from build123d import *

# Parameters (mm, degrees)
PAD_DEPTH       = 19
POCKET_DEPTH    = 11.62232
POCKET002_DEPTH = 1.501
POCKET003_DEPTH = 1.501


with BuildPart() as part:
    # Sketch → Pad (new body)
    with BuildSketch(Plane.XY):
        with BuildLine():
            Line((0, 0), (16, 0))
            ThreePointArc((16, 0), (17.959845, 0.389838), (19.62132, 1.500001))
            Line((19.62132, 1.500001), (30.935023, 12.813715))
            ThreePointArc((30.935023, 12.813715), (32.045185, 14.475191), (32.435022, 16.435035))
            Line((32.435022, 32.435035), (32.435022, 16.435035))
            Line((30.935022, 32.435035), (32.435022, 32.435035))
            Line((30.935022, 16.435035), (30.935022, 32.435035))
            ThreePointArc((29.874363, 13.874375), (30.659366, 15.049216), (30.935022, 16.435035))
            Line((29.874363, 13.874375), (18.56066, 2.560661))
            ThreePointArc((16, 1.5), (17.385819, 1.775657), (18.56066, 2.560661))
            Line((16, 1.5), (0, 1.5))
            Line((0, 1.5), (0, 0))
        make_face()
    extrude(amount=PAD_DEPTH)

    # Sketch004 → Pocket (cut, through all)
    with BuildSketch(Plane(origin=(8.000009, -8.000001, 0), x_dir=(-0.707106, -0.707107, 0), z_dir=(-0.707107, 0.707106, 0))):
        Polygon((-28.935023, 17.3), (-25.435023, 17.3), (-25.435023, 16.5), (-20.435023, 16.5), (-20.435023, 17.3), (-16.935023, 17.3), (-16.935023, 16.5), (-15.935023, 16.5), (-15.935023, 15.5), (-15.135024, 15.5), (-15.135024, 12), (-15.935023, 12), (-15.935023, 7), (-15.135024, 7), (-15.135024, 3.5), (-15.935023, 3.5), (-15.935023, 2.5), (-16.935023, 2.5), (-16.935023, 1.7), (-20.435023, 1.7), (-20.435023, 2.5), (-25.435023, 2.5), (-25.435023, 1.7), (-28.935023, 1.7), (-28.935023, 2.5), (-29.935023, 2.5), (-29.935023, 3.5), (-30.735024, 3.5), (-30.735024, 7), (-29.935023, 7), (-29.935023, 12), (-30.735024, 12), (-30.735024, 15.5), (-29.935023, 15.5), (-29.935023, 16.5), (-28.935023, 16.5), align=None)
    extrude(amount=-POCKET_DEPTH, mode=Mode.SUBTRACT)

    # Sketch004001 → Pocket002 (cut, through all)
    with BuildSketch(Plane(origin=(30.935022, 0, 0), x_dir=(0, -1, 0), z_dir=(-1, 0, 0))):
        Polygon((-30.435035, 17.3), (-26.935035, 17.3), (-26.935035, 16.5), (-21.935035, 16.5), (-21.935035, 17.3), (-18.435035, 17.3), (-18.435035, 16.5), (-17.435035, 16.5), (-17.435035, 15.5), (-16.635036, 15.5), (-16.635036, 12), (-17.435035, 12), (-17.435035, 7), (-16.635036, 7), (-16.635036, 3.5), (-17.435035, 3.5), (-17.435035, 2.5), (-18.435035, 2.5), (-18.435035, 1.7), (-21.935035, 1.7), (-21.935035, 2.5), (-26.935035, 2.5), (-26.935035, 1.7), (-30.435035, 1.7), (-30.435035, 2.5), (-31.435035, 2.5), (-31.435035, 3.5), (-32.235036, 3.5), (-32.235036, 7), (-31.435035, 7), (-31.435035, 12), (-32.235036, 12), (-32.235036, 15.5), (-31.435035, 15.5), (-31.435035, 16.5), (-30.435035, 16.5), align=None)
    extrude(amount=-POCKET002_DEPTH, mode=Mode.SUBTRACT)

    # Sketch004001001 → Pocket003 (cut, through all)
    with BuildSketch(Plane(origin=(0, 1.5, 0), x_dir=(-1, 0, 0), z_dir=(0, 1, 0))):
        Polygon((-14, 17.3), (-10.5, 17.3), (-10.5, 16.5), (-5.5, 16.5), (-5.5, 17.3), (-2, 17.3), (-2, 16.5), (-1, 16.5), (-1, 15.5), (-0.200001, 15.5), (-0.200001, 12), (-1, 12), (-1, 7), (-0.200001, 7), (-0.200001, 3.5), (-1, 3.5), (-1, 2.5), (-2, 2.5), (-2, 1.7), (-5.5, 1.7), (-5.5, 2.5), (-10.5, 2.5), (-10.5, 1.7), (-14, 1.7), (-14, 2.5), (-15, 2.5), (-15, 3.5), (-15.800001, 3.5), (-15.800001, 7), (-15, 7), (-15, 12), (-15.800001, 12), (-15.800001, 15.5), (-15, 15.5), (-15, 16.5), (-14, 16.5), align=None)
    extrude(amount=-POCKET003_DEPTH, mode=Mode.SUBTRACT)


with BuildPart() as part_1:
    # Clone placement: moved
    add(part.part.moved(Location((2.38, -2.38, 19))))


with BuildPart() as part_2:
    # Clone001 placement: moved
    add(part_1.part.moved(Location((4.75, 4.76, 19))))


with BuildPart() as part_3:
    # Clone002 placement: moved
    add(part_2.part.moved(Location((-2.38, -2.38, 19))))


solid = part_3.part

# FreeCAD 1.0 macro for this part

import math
import FreeCAD as App
import Part
import Sketcher

V = App.Vector

doc = App.newDocument("Part")
body = doc.addObject("PartDesign::Body", "Body")

sketch1 = doc.addObject("Sketcher::SketchObject", "Sketch")
body.addObject(sketch1)
sketch1.AttachmentSupport = (doc.XY_Plane, [""])
sketch1.MapMode = "FlatFace"
sketch1.addGeometry([
    Part.LineSegment(V(0, 0, 0), V(16, 0, 0)),
    Part.ArcOfCircle(Part.Circle(V(16, 5.1, 0), V(0, 0, 1), 5.1), math.radians(-90), math.radians(-45)),
    Part.LineSegment(V(19.6, 1.5, 0), V(30.9, 12.8, 0)),
    Part.ArcOfCircle(Part.Circle(V(27.3, 16.4, 0), V(0, 0, 1), 5.1), math.radians(-45), math.radians(0)),
    Part.LineSegment(V(32.4, 16.4, 0), V(32.4, 32.4, 0)),
    Part.LineSegment(V(32.4, 32.4, 0), V(30.9, 32.4, 0)),
    Part.LineSegment(V(30.9, 32.4, 0), V(30.9, 16.4, 0)),
    Part.ArcOfCircle(Part.Circle(V(27.3, 16.4, 0), V(0, 0, 1), 3.6), math.radians(-45), math.radians(0)),
    Part.LineSegment(V(29.9, 13.9, 0), V(18.6, 2.6, 0)),
    Part.ArcOfCircle(Part.Circle(V(16, 5.1, 0), V(0, 0, 1), 3.6), math.radians(-90), math.radians(-45)),
    Part.LineSegment(V(16, 1.5, 0), V(0, 1.5, 0)),
    Part.LineSegment(V(0, 1.5, 0), V(0, 0, 0)),
], False)
sketch1.addConstraint([
    Sketcher.Constraint("Tangent", 0, 2, 1, 1),
    Sketcher.Constraint("Tangent", 1, 2, 2, 1),
    Sketcher.Constraint("Tangent", 2, 2, 3, 1),
    Sketcher.Constraint("Tangent", 3, 2, 4, 1),
    Sketcher.Constraint("Coincident", 4, 2, 5, 1),
    Sketcher.Constraint("Coincident", 5, 2, 6, 1),
    Sketcher.Constraint("Tangent", 6, 2, 7, 2),
    Sketcher.Constraint("Tangent", 7, 1, 8, 1),
    Sketcher.Constraint("Tangent", 8, 2, 9, 2),
    Sketcher.Constraint("Tangent", 9, 1, 10, 1),
    Sketcher.Constraint("Coincident", 10, 2, 11, 1),
    Sketcher.Constraint("Coincident", 11, 2, 0, 1),
    Sketcher.Constraint("Horizontal", 0),
    Sketcher.Constraint("Vertical", 4),
    Sketcher.Constraint("Horizontal", 5),
    Sketcher.Constraint("Vertical", 6),
    Sketcher.Constraint("Horizontal", 10),
    Sketcher.Constraint("Vertical", 11),
    Sketcher.Constraint("Coincident", 11, 2, -1, 1),
    Sketcher.Constraint("Coincident", 7, 3, 3, 3),
    Sketcher.Constraint("Coincident", 9, 3, 1, 3),
    Sketcher.Constraint("Equal", 7, 9),
    Sketcher.Constraint("Parallel", 2, 8),
    Sketcher.Constraint("Horizontal", 1, 2, 9, 1),
    Sketcher.Constraint("Vertical", 2, 2, 5, 2),
    Sketcher.Constraint("Equal", 10, 4),
    Sketcher.Constraint("DistanceX", 0, 1, 0, 2, 16.0),
    Sketcher.Constraint("Distance", 2, 16.0),
    Sketcher.Constraint("DistanceX", 5, 2, 5, 1, 1.5),
])
pad1 = doc.addObject("PartDesign::Pad", "Pad")
body.addObject(pad1)
pad1.Profile = sketch1
pad1.Length = 19

sketch2 = doc.addObject("Sketcher::SketchObject", "Sketch001")
body.addObject(sketch2)
sketch2.Placement = App.Placement(V(8.000009, -8.000001, 0), App.Rotation(V(-0.707106281, -0.707107281, 0), V(0, 0, 0.999999999), V(-0.707107281, 0.707106281, 0), "ZXY"))
sketch2.addGeometry([
    Part.LineSegment(V(-25.4, 17.3, 0), V(-28.9, 17.3, 0)),
    Part.LineSegment(V(-28.9, 17.3, 0), V(-28.9, 16.5, 0)),
    Part.LineSegment(V(-28.9, 16.5, 0), V(-29.9, 16.5, 0)),
    Part.LineSegment(V(-29.9, 16.5, 0), V(-29.9, 15.5, 0)),
    Part.LineSegment(V(-29.9, 15.5, 0), V(-30.7, 15.5, 0)),
    Part.LineSegment(V(-30.7, 15.5, 0), V(-30.7, 12, 0)),
    Part.LineSegment(V(-30.7, 12, 0), V(-29.9, 12, 0)),
    Part.LineSegment(V(-29.9, 12, 0), V(-29.9, 7, 0)),
    Part.LineSegment(V(-29.9, 7, 0), V(-30.7, 7, 0)),
    Part.LineSegment(V(-30.7, 7, 0), V(-30.7, 3.5, 0)),
    Part.LineSegment(V(-30.7, 3.5, 0), V(-29.9, 3.5, 0)),
    Part.LineSegment(V(-29.9, 3.5, 0), V(-29.9, 2.5, 0)),
    Part.LineSegment(V(-29.9, 2.5, 0), V(-28.9, 2.5, 0)),
    Part.LineSegment(V(-28.9, 2.5, 0), V(-28.9, 1.7, 0)),
    Part.LineSegment(V(-28.9, 1.7, 0), V(-25.4, 1.7, 0)),
    Part.LineSegment(V(-25.4, 1.7, 0), V(-25.4, 2.5, 0)),
    Part.LineSegment(V(-25.4, 2.5, 0), V(-20.4, 2.5, 0)),
    Part.LineSegment(V(-20.4, 2.5, 0), V(-20.4, 1.7, 0)),
    Part.LineSegment(V(-20.4, 1.7, 0), V(-16.9, 1.7, 0)),
    Part.LineSegment(V(-16.9, 1.7, 0), V(-16.9, 2.5, 0)),
    Part.LineSegment(V(-16.9, 2.5, 0), V(-15.9, 2.5, 0)),
    Part.LineSegment(V(-15.9, 2.5, 0), V(-15.9, 3.5, 0)),
    Part.LineSegment(V(-15.9, 3.5, 0), V(-15.1, 3.5, 0)),
    Part.LineSegment(V(-15.1, 3.5, 0), V(-15.1, 7, 0)),
    Part.LineSegment(V(-15.1, 7, 0), V(-15.9, 7, 0)),
    Part.LineSegment(V(-15.9, 7, 0), V(-15.9, 12, 0)),
    Part.LineSegment(V(-15.9, 12, 0), V(-15.1, 12, 0)),
    Part.LineSegment(V(-15.1, 12, 0), V(-15.1, 15.5, 0)),
    Part.LineSegment(V(-15.1, 15.5, 0), V(-15.9, 15.5, 0)),
    Part.LineSegment(V(-15.9, 15.5, 0), V(-15.9, 16.5, 0)),
    Part.LineSegment(V(-15.9, 16.5, 0), V(-16.9, 16.5, 0)),
    Part.LineSegment(V(-16.9, 16.5, 0), V(-16.9, 17.3, 0)),
    Part.LineSegment(V(-16.9, 17.3, 0), V(-20.4, 17.3, 0)),
    Part.LineSegment(V(-20.4, 17.3, 0), V(-20.4, 16.5, 0)),
    Part.LineSegment(V(-20.4, 16.5, 0), V(-25.4, 16.5, 0)),
    Part.LineSegment(V(-25.4, 16.5, 0), V(-25.4, 17.3, 0)),
], False)
sketch2.addConstraint([
    Sketcher.Constraint("Coincident", 0, 2, 1, 1),
    Sketcher.Constraint("Coincident", 1, 2, 2, 1),
    Sketcher.Constraint("Coincident", 2, 2, 3, 1),
    Sketcher.Constraint("Coincident", 3, 2, 4, 1),
    Sketcher.Constraint("Coincident", 4, 2, 5, 1),
    Sketcher.Constraint("Coincident", 5, 2, 6, 1),
    Sketcher.Constraint("Coincident", 6, 2, 7, 1),
    Sketcher.Constraint("Coincident", 7, 2, 8, 1),
    Sketcher.Constraint("Coincident", 8, 2, 9, 1),
    Sketcher.Constraint("Coincident", 9, 2, 10, 1),
    Sketcher.Constraint("Coincident", 10, 2, 11, 1),
    Sketcher.Constraint("Coincident", 11, 2, 12, 1),
    Sketcher.Constraint("Coincident", 12, 2, 13, 1),
    Sketcher.Constraint("Coincident", 13, 2, 14, 1),
    Sketcher.Constraint("Coincident", 14, 2, 15, 1),
    Sketcher.Constraint("Coincident", 15, 2, 16, 1),
    Sketcher.Constraint("Coincident", 16, 2, 17, 1),
    Sketcher.Constraint("Coincident", 17, 2, 18, 1),
    Sketcher.Constraint("Coincident", 18, 2, 19, 1),
    Sketcher.Constraint("Coincident", 19, 2, 20, 1),
    Sketcher.Constraint("Coincident", 20, 2, 21, 1),
    Sketcher.Constraint("Coincident", 21, 2, 22, 1),
    Sketcher.Constraint("Coincident", 22, 2, 23, 1),
    Sketcher.Constraint("Coincident", 23, 2, 24, 1),
    Sketcher.Constraint("Coincident", 24, 2, 25, 1),
    Sketcher.Constraint("Coincident", 25, 2, 26, 1),
    Sketcher.Constraint("Coincident", 26, 2, 27, 1),
    Sketcher.Constraint("Coincident", 27, 2, 28, 1),
    Sketcher.Constraint("Coincident", 28, 2, 29, 1),
    Sketcher.Constraint("Coincident", 29, 2, 30, 1),
    Sketcher.Constraint("Coincident", 30, 2, 31, 1),
    Sketcher.Constraint("Coincident", 31, 2, 32, 1),
    Sketcher.Constraint("Coincident", 32, 2, 33, 1),
    Sketcher.Constraint("Coincident", 33, 2, 34, 1),
    Sketcher.Constraint("Coincident", 34, 2, 35, 1),
    Sketcher.Constraint("Coincident", 35, 2, 0, 1),
    Sketcher.Constraint("Horizontal", 0),
    Sketcher.Constraint("Vertical", 1),
    Sketcher.Constraint("Horizontal", 2),
    Sketcher.Constraint("Vertical", 3),
    Sketcher.Constraint("Horizontal", 4),
    Sketcher.Constraint("Vertical", 5),
    Sketcher.Constraint("Horizontal", 6),
    Sketcher.Constraint("Vertical", 7),
    Sketcher.Constraint("Horizontal", 8),
    Sketcher.Constraint("Vertical", 9),
    Sketcher.Constraint("Horizontal", 10),
    Sketcher.Constraint("Vertical", 11),
    Sketcher.Constraint("Horizontal", 12),
    Sketcher.Constraint("Vertical", 13),
    Sketcher.Constraint("Horizontal", 14),
    Sketcher.Constraint("Vertical", 15),
    Sketcher.Constraint("Horizontal", 16),
    Sketcher.Constraint("Vertical", 17),
    Sketcher.Constraint("Horizontal", 18),
    Sketcher.Constraint("Vertical", 19),
    Sketcher.Constraint("Horizontal", 20),
    Sketcher.Constraint("Vertical", 21),
    Sketcher.Constraint("Horizontal", 22),
    Sketcher.Constraint("Vertical", 23),
    Sketcher.Constraint("Horizontal", 24),
    Sketcher.Constraint("Vertical", 25),
    Sketcher.Constraint("Horizontal", 26),
    Sketcher.Constraint("Vertical", 27),
    Sketcher.Constraint("Horizontal", 28),
    Sketcher.Constraint("Vertical", 29),
    Sketcher.Constraint("Horizontal", 30),
    Sketcher.Constraint("Vertical", 31),
    Sketcher.Constraint("Horizontal", 32),
    Sketcher.Constraint("Vertical", 33),
    Sketcher.Constraint("Horizontal", 34),
    Sketcher.Constraint("Vertical", 35),
    Sketcher.Constraint("Horizontal", 12, 2, 15, 2),
    Sketcher.Constraint("Horizontal", 14, 2, 17, 2),
    Sketcher.Constraint("Horizontal", 16, 2, 19, 2),
    Sketcher.Constraint("Horizontal", 10, 2, 21, 2),
    Sketcher.Constraint("Horizontal", 8, 2, 23, 2),
    Sketcher.Constraint("Horizontal", 6, 2, 25, 2),
    Sketcher.Constraint("Horizontal", 4, 2, 27, 2),
    Sketcher.Constraint("Horizontal", 2, 2, 29, 2),
    Sketcher.Constraint("Horizontal", 0, 2, 31, 2),
    Sketcher.Constraint("Horizontal", 30, 2, 33, 2),
    Sketcher.Constraint("Vertical", 3, 2, 6, 2),
    Sketcher.Constraint("Vertical", 5, 2, 8, 2),
    Sketcher.Constraint("Vertical", 7, 2, 10, 2),
    Sketcher.Constraint("Vertical", 1, 2, 12, 2),
    Sketcher.Constraint("Vertical", 21, 2, 24, 2),
    Sketcher.Constraint("Vertical", 23, 2, 26, 2),
    Sketcher.Constraint("Vertical", 25, 2, 28, 2),
    Sketcher.Constraint("Vertical", 19, 2, 30, 2),
    Sketcher.Constraint("Vertical", 17, 2, 32, 2),
    Sketcher.Constraint("Vertical", 15, 2, 34, 2),
    Sketcher.Constraint("Equal", 14, 18),
    Sketcher.Constraint("Equal", 12, 20),
    Sketcher.Constraint("Equal", 28, 1),
    Sketcher.Constraint("Equal", 30, 3),
    Sketcher.Constraint("Equal", 32, 5),
    Sketcher.Constraint("Equal", 34, 7),
    Sketcher.Constraint("Equal", 5, 9),
    Sketcher.Constraint("Equal", 3, 11),
    Sketcher.Constraint("Equal", 1, 13),
    Sketcher.Constraint("Equal", 10, 15),
    Sketcher.Constraint("DistanceX", 2, 2, 2, 1, 1.0),
    Sketcher.Constraint("DistanceX", 16, 1, 16, 2, 5.0),
    Sketcher.Constraint("DistanceX", 0, 2, 0, 1, 3.5),
    Sketcher.Constraint("DistanceX", 4, 2, 4, 1, 0.800001),
    Sketcher.Constraint("DistanceY", -1, 1, 5, 2, 12.0),
    Sketcher.Constraint("DistanceX", 0, 2, -1, 1, 28.935023),
])
pocket1 = doc.addObject("PartDesign::Pocket", "Pocket")
body.addObject(pocket1)
pocket1.Profile = sketch2
pocket1.Type = "ThroughAll"

sketch3 = doc.addObject("Sketcher::SketchObject", "Sketch002")
body.addObject(sketch3)
sketch3.AttachmentSupport = (doc.YZ_Plane, [""])
sketch3.MapMode = "FlatFace"
sketch3.AttachmentOffset = App.Placement(V(0, 0, 30.935022), App.Rotation())
sketch3.addGeometry([
    Part.LineSegment(V(26.9, 17.3, 0), V(30.4, 17.3, 0)),
    Part.LineSegment(V(30.4, 17.3, 0), V(30.4, 16.5, 0)),
    Part.LineSegment(V(30.4, 16.5, 0), V(31.4, 16.5, 0)),
    Part.LineSegment(V(31.4, 16.5, 0), V(31.4, 15.5, 0)),
    Part.LineSegment(V(31.4, 15.5, 0), V(32.2, 15.5, 0)),
    Part.LineSegment(V(32.2, 15.5, 0), V(32.2, 12, 0)),
    Part.LineSegment(V(32.2, 12, 0), V(31.4, 12, 0)),
    Part.LineSegment(V(31.4, 12, 0), V(31.4, 7, 0)),
    Part.LineSegment(V(31.4, 7, 0), V(32.2, 7, 0)),
    Part.LineSegment(V(32.2, 7, 0), V(32.2, 3.5, 0)),
    Part.LineSegment(V(32.2, 3.5, 0), V(31.4, 3.5, 0)),
    Part.LineSegment(V(31.4, 3.5, 0), V(31.4, 2.5, 0)),
    Part.LineSegment(V(31.4, 2.5, 0), V(30.4, 2.5, 0)),
    Part.LineSegment(V(30.4, 2.5, 0), V(30.4, 1.7, 0)),
    Part.LineSegment(V(30.4, 1.7, 0), V(26.9, 1.7, 0)),
    Part.LineSegment(V(26.9, 1.7, 0), V(26.9, 2.5, 0)),
    Part.LineSegment(V(26.9, 2.5, 0), V(21.9, 2.5, 0)),
    Part.LineSegment(V(21.9, 2.5, 0), V(21.9, 1.7, 0)),
    Part.LineSegment(V(21.9, 1.7, 0), V(18.4, 1.7, 0)),
    Part.LineSegment(V(18.4, 1.7, 0), V(18.4, 2.5, 0)),
    Part.LineSegment(V(18.4, 2.5, 0), V(17.4, 2.5, 0)),
    Part.LineSegment(V(17.4, 2.5, 0), V(17.4, 3.5, 0)),
    Part.LineSegment(V(17.4, 3.5, 0), V(16.6, 3.5, 0)),
    Part.LineSegment(V(16.6, 3.5, 0), V(16.6, 7, 0)),
    Part.LineSegment(V(16.6, 7, 0), V(17.4, 7, 0)),
    Part.LineSegment(V(17.4, 7, 0), V(17.4, 12, 0)),
    Part.LineSegment(V(17.4, 12, 0), V(16.6, 12, 0)),
    Part.LineSegment(V(16.6, 12, 0), V(16.6, 15.5, 0)),
    Part.LineSegment(V(16.6, 15.5, 0), V(17.4, 15.5, 0)),
    Part.LineSegment(V(17.4, 15.5, 0), V(17.4, 16.5, 0)),
    Part.LineSegment(V(17.4, 16.5, 0), V(18.4, 16.5, 0)),
    Part.LineSegment(V(18.4, 16.5, 0), V(18.4, 17.3, 0)),
    Part.LineSegment(V(18.4, 17.3, 0), V(21.9, 17.3, 0)),
    Part.LineSegment(V(21.9, 17.3, 0), V(21.9, 16.5, 0)),
    Part.LineSegment(V(21.9, 16.5, 0), V(26.9, 16.5, 0)),
    Part.LineSegment(V(26.9, 16.5, 0), V(26.9, 17.3, 0)),
], False)
sketch3.addConstraint([
    Sketcher.Constraint("Coincident", 0, 2, 1, 1),
    Sketcher.Constraint("Coincident", 1, 2, 2, 1),
    Sketcher.Constraint("Coincident", 2, 2, 3, 1),
    Sketcher.Constraint("Coincident", 3, 2, 4, 1),
    Sketcher.Constraint("Coincident", 4, 2, 5, 1),
    Sketcher.Constraint("Coincident", 5, 2, 6, 1),
    Sketcher.Constraint("Coincident", 6, 2, 7, 1),
    Sketcher.Constraint("Coincident", 7, 2, 8, 1),
    Sketcher.Constraint("Coincident", 8, 2, 9, 1),
    Sketcher.Constraint("Coincident", 9, 2, 10, 1),
    Sketcher.Constraint("Coincident", 10, 2, 11, 1),
    Sketcher.Constraint("Coincident", 11, 2, 12, 1),
    Sketcher.Constraint("Coincident", 12, 2, 13, 1),
    Sketcher.Constraint("Coincident", 13, 2, 14, 1),
    Sketcher.Constraint("Coincident", 14, 2, 15, 1),
    Sketcher.Constraint("Coincident", 15, 2, 16, 1),
    Sketcher.Constraint("Coincident", 16, 2, 17, 1),
    Sketcher.Constraint("Coincident", 17, 2, 18, 1),
    Sketcher.Constraint("Coincident", 18, 2, 19, 1),
    Sketcher.Constraint("Coincident", 19, 2, 20, 1),
    Sketcher.Constraint("Coincident", 20, 2, 21, 1),
    Sketcher.Constraint("Coincident", 21, 2, 22, 1),
    Sketcher.Constraint("Coincident", 22, 2, 23, 1),
    Sketcher.Constraint("Coincident", 23, 2, 24, 1),
    Sketcher.Constraint("Coincident", 24, 2, 25, 1),
    Sketcher.Constraint("Coincident", 25, 2, 26, 1),
    Sketcher.Constraint("Coincident", 26, 2, 27, 1),
    Sketcher.Constraint("Coincident", 27, 2, 28, 1),
    Sketcher.Constraint("Coincident", 28, 2, 29, 1),
    Sketcher.Constraint("Coincident", 29, 2, 30, 1),
    Sketcher.Constraint("Coincident", 30, 2, 31, 1),
    Sketcher.Constraint("Coincident", 31, 2, 32, 1),
    Sketcher.Constraint("Coincident", 32, 2, 33, 1),
    Sketcher.Constraint("Coincident", 33, 2, 34, 1),
    Sketcher.Constraint("Coincident", 34, 2, 35, 1),
    Sketcher.Constraint("Coincident", 35, 2, 0, 1),
    Sketcher.Constraint("Horizontal", 0),
    Sketcher.Constraint("Vertical", 1),
    Sketcher.Constraint("Horizontal", 2),
    Sketcher.Constraint("Vertical", 3),
    Sketcher.Constraint("Horizontal", 4),
    Sketcher.Constraint("Vertical", 5),
    Sketcher.Constraint("Horizontal", 6),
    Sketcher.Constraint("Vertical", 7),
    Sketcher.Constraint("Horizontal", 8),
    Sketcher.Constraint("Vertical", 9),
    Sketcher.Constraint("Horizontal", 10),
    Sketcher.Constraint("Vertical", 11),
    Sketcher.Constraint("Horizontal", 12),
    Sketcher.Constraint("Vertical", 13),
    Sketcher.Constraint("Horizontal", 14),
    Sketcher.Constraint("Vertical", 15),
    Sketcher.Constraint("Horizontal", 16),
    Sketcher.Constraint("Vertical", 17),
    Sketcher.Constraint("Horizontal", 18),
    Sketcher.Constraint("Vertical", 19),
    Sketcher.Constraint("Horizontal", 20),
    Sketcher.Constraint("Vertical", 21),
    Sketcher.Constraint("Horizontal", 22),
    Sketcher.Constraint("Vertical", 23),
    Sketcher.Constraint("Horizontal", 24),
    Sketcher.Constraint("Vertical", 25),
    Sketcher.Constraint("Horizontal", 26),
    Sketcher.Constraint("Vertical", 27),
    Sketcher.Constraint("Horizontal", 28),
    Sketcher.Constraint("Vertical", 29),
    Sketcher.Constraint("Horizontal", 30),
    Sketcher.Constraint("Vertical", 31),
    Sketcher.Constraint("Horizontal", 32),
    Sketcher.Constraint("Vertical", 33),
    Sketcher.Constraint("Horizontal", 34),
    Sketcher.Constraint("Vertical", 35),
    Sketcher.Constraint("Horizontal", 12, 2, 15, 2),
    Sketcher.Constraint("Horizontal", 14, 2, 17, 2),
    Sketcher.Constraint("Horizontal", 16, 2, 19, 2),
    Sketcher.Constraint("Horizontal", 10, 2, 21, 2),
    Sketcher.Constraint("Horizontal", 8, 2, 23, 2),
    Sketcher.Constraint("Horizontal", 6, 2, 25, 2),
    Sketcher.Constraint("Horizontal", 4, 2, 27, 2),
    Sketcher.Constraint("Horizontal", 2, 2, 29, 2),
    Sketcher.Constraint("Horizontal", 0, 2, 31, 2),
    Sketcher.Constraint("Horizontal", 30, 2, 33, 2),
    Sketcher.Constraint("Vertical", 3, 2, 6, 2),
    Sketcher.Constraint("Vertical", 5, 2, 8, 2),
    Sketcher.Constraint("Vertical", 7, 2, 10, 2),
    Sketcher.Constraint("Vertical", 1, 2, 12, 2),
    Sketcher.Constraint("Vertical", 21, 2, 24, 2),
    Sketcher.Constraint("Vertical", 23, 2, 26, 2),
    Sketcher.Constraint("Vertical", 25, 2, 28, 2),
    Sketcher.Constraint("Vertical", 19, 2, 30, 2),
    Sketcher.Constraint("Vertical", 17, 2, 32, 2),
    Sketcher.Constraint("Vertical", 15, 2, 34, 2),
    Sketcher.Constraint("Equal", 14, 18),
    Sketcher.Constraint("Equal", 12, 20),
    Sketcher.Constraint("Equal", 28, 1),
    Sketcher.Constraint("Equal", 30, 3),
    Sketcher.Constraint("Equal", 32, 5),
    Sketcher.Constraint("Equal", 34, 7),
    Sketcher.Constraint("Equal", 5, 9),
    Sketcher.Constraint("Equal", 3, 11),
    Sketcher.Constraint("Equal", 1, 13),
    Sketcher.Constraint("Equal", 10, 15),
    Sketcher.Constraint("DistanceX", 2, 1, 2, 2, 1.0),
    Sketcher.Constraint("DistanceX", 16, 2, 16, 1, 5.0),
    Sketcher.Constraint("DistanceX", 0, 1, 0, 2, 3.5),
    Sketcher.Constraint("DistanceX", 4, 1, 4, 2, 0.800001),
    Sketcher.Constraint("DistanceY", -1, 1, 5, 2, 12.0),
    Sketcher.Constraint("DistanceX", -1, 1, 0, 2, 30.435035),
])
pocket2 = doc.addObject("PartDesign::Pocket", "Pocket001")
body.addObject(pocket2)
pocket2.Profile = sketch3
pocket2.Type = "ThroughAll"
pocket2.Reversed = True

sketch4 = doc.addObject("Sketcher::SketchObject", "Sketch003")
body.addObject(sketch4)
sketch4.AttachmentSupport = (doc.XZ_Plane, [""])
sketch4.MapMode = "FlatFace"
sketch4.AttachmentOffset = App.Placement(V(0, 0, -1.5), App.Rotation())
sketch4.addGeometry([
    Part.LineSegment(V(10.5, 17.3, 0), V(14, 17.3, 0)),
    Part.LineSegment(V(14, 17.3, 0), V(14, 16.5, 0)),
    Part.LineSegment(V(14, 16.5, 0), V(15, 16.5, 0)),
    Part.LineSegment(V(15, 16.5, 0), V(15, 15.5, 0)),
    Part.LineSegment(V(15, 15.5, 0), V(15.8, 15.5, 0)),
    Part.LineSegment(V(15.8, 15.5, 0), V(15.8, 12, 0)),
    Part.LineSegment(V(15.8, 12, 0), V(15, 12, 0)),
    Part.LineSegment(V(15, 12, 0), V(15, 7, 0)),
    Part.LineSegment(V(15, 7, 0), V(15.8, 7, 0)),
    Part.LineSegment(V(15.8, 7, 0), V(15.8, 3.5, 0)),
    Part.LineSegment(V(15.8, 3.5, 0), V(15, 3.5, 0)),
    Part.LineSegment(V(15, 3.5, 0), V(15, 2.5, 0)),
    Part.LineSegment(V(15, 2.5, 0), V(14, 2.5, 0)),
    Part.LineSegment(V(14, 2.5, 0), V(14, 1.7, 0)),
    Part.LineSegment(V(14, 1.7, 0), V(10.5, 1.7, 0)),
    Part.LineSegment(V(10.5, 1.7, 0), V(10.5, 2.5, 0)),
    Part.LineSegment(V(10.5, 2.5, 0), V(5.5, 2.5, 0)),
    Part.LineSegment(V(5.5, 2.5, 0), V(5.5, 1.7, 0)),
    Part.LineSegment(V(5.5, 1.7, 0), V(2, 1.7, 0)),
    Part.LineSegment(V(2, 1.7, 0), V(2, 2.5, 0)),
    Part.LineSegment(V(2, 2.5, 0), V(1, 2.5, 0)),
    Part.LineSegment(V(1, 2.5, 0), V(1, 3.5, 0)),
    Part.LineSegment(V(1, 3.5, 0), V(0.2, 3.5, 0)),
    Part.LineSegment(V(0.2, 3.5, 0), V(0.2, 7, 0)),
    Part.LineSegment(V(0.2, 7, 0), V(1, 7, 0)),
    Part.LineSegment(V(1, 7, 0), V(1, 12, 0)),
    Part.LineSegment(V(1, 12, 0), V(0.2, 12, 0)),
    Part.LineSegment(V(0.2, 12, 0), V(0.2, 15.5, 0)),
    Part.LineSegment(V(0.2, 15.5, 0), V(1, 15.5, 0)),
    Part.LineSegment(V(1, 15.5, 0), V(1, 16.5, 0)),
    Part.LineSegment(V(1, 16.5, 0), V(2, 16.5, 0)),
    Part.LineSegment(V(2, 16.5, 0), V(2, 17.3, 0)),
    Part.LineSegment(V(2, 17.3, 0), V(5.5, 17.3, 0)),
    Part.LineSegment(V(5.5, 17.3, 0), V(5.5, 16.5, 0)),
    Part.LineSegment(V(5.5, 16.5, 0), V(10.5, 16.5, 0)),
    Part.LineSegment(V(10.5, 16.5, 0), V(10.5, 17.3, 0)),
], False)
sketch4.addConstraint([
    Sketcher.Constraint("Coincident", 0, 2, 1, 1),
    Sketcher.Constraint("Coincident", 1, 2, 2, 1),
    Sketcher.Constraint("Coincident", 2, 2, 3, 1),
    Sketcher.Constraint("Coincident", 3, 2, 4, 1),
    Sketcher.Constraint("Coincident", 4, 2, 5, 1),
    Sketcher.Constraint("Coincident", 5, 2, 6, 1),
    Sketcher.Constraint("Coincident", 6, 2, 7, 1),
    Sketcher.Constraint("Coincident", 7, 2, 8, 1),
    Sketcher.Constraint("Coincident", 8, 2, 9, 1),
    Sketcher.Constraint("Coincident", 9, 2, 10, 1),
    Sketcher.Constraint("Coincident", 10, 2, 11, 1),
    Sketcher.Constraint("Coincident", 11, 2, 12, 1),
    Sketcher.Constraint("Coincident", 12, 2, 13, 1),
    Sketcher.Constraint("Coincident", 13, 2, 14, 1),
    Sketcher.Constraint("Coincident", 14, 2, 15, 1),
    Sketcher.Constraint("Coincident", 15, 2, 16, 1),
    Sketcher.Constraint("Coincident", 16, 2, 17, 1),
    Sketcher.Constraint("Coincident", 17, 2, 18, 1),
    Sketcher.Constraint("Coincident", 18, 2, 19, 1),
    Sketcher.Constraint("Coincident", 19, 2, 20, 1),
    Sketcher.Constraint("Coincident", 20, 2, 21, 1),
    Sketcher.Constraint("Coincident", 21, 2, 22, 1),
    Sketcher.Constraint("Coincident", 22, 2, 23, 1),
    Sketcher.Constraint("Coincident", 23, 2, 24, 1),
    Sketcher.Constraint("Coincident", 24, 2, 25, 1),
    Sketcher.Constraint("Coincident", 25, 2, 26, 1),
    Sketcher.Constraint("Coincident", 26, 2, 27, 1),
    Sketcher.Constraint("Coincident", 27, 2, 28, 1),
    Sketcher.Constraint("Coincident", 28, 2, 29, 1),
    Sketcher.Constraint("Coincident", 29, 2, 30, 1),
    Sketcher.Constraint("Coincident", 30, 2, 31, 1),
    Sketcher.Constraint("Coincident", 31, 2, 32, 1),
    Sketcher.Constraint("Coincident", 32, 2, 33, 1),
    Sketcher.Constraint("Coincident", 33, 2, 34, 1),
    Sketcher.Constraint("Coincident", 34, 2, 35, 1),
    Sketcher.Constraint("Coincident", 35, 2, 0, 1),
    Sketcher.Constraint("Horizontal", 0),
    Sketcher.Constraint("Vertical", 1),
    Sketcher.Constraint("Horizontal", 2),
    Sketcher.Constraint("Vertical", 3),
    Sketcher.Constraint("Horizontal", 4),
    Sketcher.Constraint("Vertical", 5),
    Sketcher.Constraint("Horizontal", 6),
    Sketcher.Constraint("Vertical", 7),
    Sketcher.Constraint("Horizontal", 8),
    Sketcher.Constraint("Vertical", 9),
    Sketcher.Constraint("Horizontal", 10),
    Sketcher.Constraint("Vertical", 11),
    Sketcher.Constraint("Horizontal", 12),
    Sketcher.Constraint("Vertical", 13),
    Sketcher.Constraint("Horizontal", 14),
    Sketcher.Constraint("Vertical", 15),
    Sketcher.Constraint("Horizontal", 16),
    Sketcher.Constraint("Vertical", 17),
    Sketcher.Constraint("Horizontal", 18),
    Sketcher.Constraint("Vertical", 19),
    Sketcher.Constraint("Horizontal", 20),
    Sketcher.Constraint("Vertical", 21),
    Sketcher.Constraint("Horizontal", 22),
    Sketcher.Constraint("Vertical", 23),
    Sketcher.Constraint("Horizontal", 24),
    Sketcher.Constraint("Vertical", 25),
    Sketcher.Constraint("Horizontal", 26),
    Sketcher.Constraint("Vertical", 27),
    Sketcher.Constraint("Horizontal", 28),
    Sketcher.Constraint("Vertical", 29),
    Sketcher.Constraint("Horizontal", 30),
    Sketcher.Constraint("Vertical", 31),
    Sketcher.Constraint("Horizontal", 32),
    Sketcher.Constraint("Vertical", 33),
    Sketcher.Constraint("Horizontal", 34),
    Sketcher.Constraint("Vertical", 35),
    Sketcher.Constraint("Horizontal", 12, 2, 15, 2),
    Sketcher.Constraint("Horizontal", 14, 2, 17, 2),
    Sketcher.Constraint("Horizontal", 16, 2, 19, 2),
    Sketcher.Constraint("Horizontal", 10, 2, 21, 2),
    Sketcher.Constraint("Horizontal", 8, 2, 23, 2),
    Sketcher.Constraint("Horizontal", 6, 2, 25, 2),
    Sketcher.Constraint("Horizontal", 4, 2, 27, 2),
    Sketcher.Constraint("Horizontal", 2, 2, 29, 2),
    Sketcher.Constraint("Horizontal", 0, 2, 31, 2),
    Sketcher.Constraint("Horizontal", 30, 2, 33, 2),
    Sketcher.Constraint("Vertical", 3, 2, 6, 2),
    Sketcher.Constraint("Vertical", 5, 2, 8, 2),
    Sketcher.Constraint("Vertical", 7, 2, 10, 2),
    Sketcher.Constraint("Vertical", 1, 2, 12, 2),
    Sketcher.Constraint("Vertical", 21, 2, 24, 2),
    Sketcher.Constraint("Vertical", 23, 2, 26, 2),
    Sketcher.Constraint("Vertical", 25, 2, 28, 2),
    Sketcher.Constraint("Vertical", 19, 2, 30, 2),
    Sketcher.Constraint("Vertical", 17, 2, 32, 2),
    Sketcher.Constraint("Vertical", 15, 2, 34, 2),
    Sketcher.Constraint("Equal", 14, 18),
    Sketcher.Constraint("Equal", 12, 20),
    Sketcher.Constraint("Equal", 10, 22),
    Sketcher.Constraint("Equal", 28, 1),
    Sketcher.Constraint("Equal", 30, 3),
    Sketcher.Constraint("Equal", 32, 5),
    Sketcher.Constraint("Equal", 34, 7),
    Sketcher.Constraint("Equal", 5, 9),
    Sketcher.Constraint("Equal", 3, 11),
    Sketcher.Constraint("Equal", 1, 13),
    Sketcher.Constraint("DistanceX", 2, 1, 2, 2, 1.0),
    Sketcher.Constraint("DistanceX", 16, 2, 16, 1, 5.0),
    Sketcher.Constraint("DistanceX", 0, 1, 0, 2, 3.5),
    Sketcher.Constraint("DistanceX", 4, 1, 4, 2, 0.800001),
    Sketcher.Constraint("DistanceX", -1, 1, 0, 2, 14.0),
    Sketcher.Constraint("DistanceY", -1, 1, 5, 2, 12.0),
])
pocket3 = doc.addObject("PartDesign::Pocket", "Pocket002")
body.addObject(pocket3)
pocket3.Profile = sketch4
pocket3.Type = "ThroughAll"
pocket3.Reversed = True
body2 = doc.addObject("PartDesign::Body", "Body001")
doc.recompute()

body.Placement = App.Placement(V(2.38, -2.38, 19), App.Rotation(V(0, 0, 1), 0))
boolean = doc.addObject("PartDesign::Boolean", "Boolean")
body2.addObject(boolean)
boolean.Type = "Fuse"
boolean.addObjects([body])
body3 = doc.addObject("PartDesign::Body", "Body002")
doc.recompute()

body2.Placement = App.Placement(V(4.75, 4.76, 19), App.Rotation(V(0, 0, 1), 0))
boolean2 = doc.addObject("PartDesign::Boolean", "Boolean001")
body3.addObject(boolean2)
boolean2.Type = "Fuse"
boolean2.addObjects([body2])
body4 = doc.addObject("PartDesign::Body", "Body003")
doc.recompute()

body3.Placement = App.Placement(V(-2.38, -2.38, 19), App.Rotation(V(0, 0, 1), 0))
boolean3 = doc.addObject("PartDesign::Boolean", "Boolean002")
body4.addObject(boolean3)
boolean3.Type = "Fuse"
boolean3.addObjects([body3])

doc.recompute()
